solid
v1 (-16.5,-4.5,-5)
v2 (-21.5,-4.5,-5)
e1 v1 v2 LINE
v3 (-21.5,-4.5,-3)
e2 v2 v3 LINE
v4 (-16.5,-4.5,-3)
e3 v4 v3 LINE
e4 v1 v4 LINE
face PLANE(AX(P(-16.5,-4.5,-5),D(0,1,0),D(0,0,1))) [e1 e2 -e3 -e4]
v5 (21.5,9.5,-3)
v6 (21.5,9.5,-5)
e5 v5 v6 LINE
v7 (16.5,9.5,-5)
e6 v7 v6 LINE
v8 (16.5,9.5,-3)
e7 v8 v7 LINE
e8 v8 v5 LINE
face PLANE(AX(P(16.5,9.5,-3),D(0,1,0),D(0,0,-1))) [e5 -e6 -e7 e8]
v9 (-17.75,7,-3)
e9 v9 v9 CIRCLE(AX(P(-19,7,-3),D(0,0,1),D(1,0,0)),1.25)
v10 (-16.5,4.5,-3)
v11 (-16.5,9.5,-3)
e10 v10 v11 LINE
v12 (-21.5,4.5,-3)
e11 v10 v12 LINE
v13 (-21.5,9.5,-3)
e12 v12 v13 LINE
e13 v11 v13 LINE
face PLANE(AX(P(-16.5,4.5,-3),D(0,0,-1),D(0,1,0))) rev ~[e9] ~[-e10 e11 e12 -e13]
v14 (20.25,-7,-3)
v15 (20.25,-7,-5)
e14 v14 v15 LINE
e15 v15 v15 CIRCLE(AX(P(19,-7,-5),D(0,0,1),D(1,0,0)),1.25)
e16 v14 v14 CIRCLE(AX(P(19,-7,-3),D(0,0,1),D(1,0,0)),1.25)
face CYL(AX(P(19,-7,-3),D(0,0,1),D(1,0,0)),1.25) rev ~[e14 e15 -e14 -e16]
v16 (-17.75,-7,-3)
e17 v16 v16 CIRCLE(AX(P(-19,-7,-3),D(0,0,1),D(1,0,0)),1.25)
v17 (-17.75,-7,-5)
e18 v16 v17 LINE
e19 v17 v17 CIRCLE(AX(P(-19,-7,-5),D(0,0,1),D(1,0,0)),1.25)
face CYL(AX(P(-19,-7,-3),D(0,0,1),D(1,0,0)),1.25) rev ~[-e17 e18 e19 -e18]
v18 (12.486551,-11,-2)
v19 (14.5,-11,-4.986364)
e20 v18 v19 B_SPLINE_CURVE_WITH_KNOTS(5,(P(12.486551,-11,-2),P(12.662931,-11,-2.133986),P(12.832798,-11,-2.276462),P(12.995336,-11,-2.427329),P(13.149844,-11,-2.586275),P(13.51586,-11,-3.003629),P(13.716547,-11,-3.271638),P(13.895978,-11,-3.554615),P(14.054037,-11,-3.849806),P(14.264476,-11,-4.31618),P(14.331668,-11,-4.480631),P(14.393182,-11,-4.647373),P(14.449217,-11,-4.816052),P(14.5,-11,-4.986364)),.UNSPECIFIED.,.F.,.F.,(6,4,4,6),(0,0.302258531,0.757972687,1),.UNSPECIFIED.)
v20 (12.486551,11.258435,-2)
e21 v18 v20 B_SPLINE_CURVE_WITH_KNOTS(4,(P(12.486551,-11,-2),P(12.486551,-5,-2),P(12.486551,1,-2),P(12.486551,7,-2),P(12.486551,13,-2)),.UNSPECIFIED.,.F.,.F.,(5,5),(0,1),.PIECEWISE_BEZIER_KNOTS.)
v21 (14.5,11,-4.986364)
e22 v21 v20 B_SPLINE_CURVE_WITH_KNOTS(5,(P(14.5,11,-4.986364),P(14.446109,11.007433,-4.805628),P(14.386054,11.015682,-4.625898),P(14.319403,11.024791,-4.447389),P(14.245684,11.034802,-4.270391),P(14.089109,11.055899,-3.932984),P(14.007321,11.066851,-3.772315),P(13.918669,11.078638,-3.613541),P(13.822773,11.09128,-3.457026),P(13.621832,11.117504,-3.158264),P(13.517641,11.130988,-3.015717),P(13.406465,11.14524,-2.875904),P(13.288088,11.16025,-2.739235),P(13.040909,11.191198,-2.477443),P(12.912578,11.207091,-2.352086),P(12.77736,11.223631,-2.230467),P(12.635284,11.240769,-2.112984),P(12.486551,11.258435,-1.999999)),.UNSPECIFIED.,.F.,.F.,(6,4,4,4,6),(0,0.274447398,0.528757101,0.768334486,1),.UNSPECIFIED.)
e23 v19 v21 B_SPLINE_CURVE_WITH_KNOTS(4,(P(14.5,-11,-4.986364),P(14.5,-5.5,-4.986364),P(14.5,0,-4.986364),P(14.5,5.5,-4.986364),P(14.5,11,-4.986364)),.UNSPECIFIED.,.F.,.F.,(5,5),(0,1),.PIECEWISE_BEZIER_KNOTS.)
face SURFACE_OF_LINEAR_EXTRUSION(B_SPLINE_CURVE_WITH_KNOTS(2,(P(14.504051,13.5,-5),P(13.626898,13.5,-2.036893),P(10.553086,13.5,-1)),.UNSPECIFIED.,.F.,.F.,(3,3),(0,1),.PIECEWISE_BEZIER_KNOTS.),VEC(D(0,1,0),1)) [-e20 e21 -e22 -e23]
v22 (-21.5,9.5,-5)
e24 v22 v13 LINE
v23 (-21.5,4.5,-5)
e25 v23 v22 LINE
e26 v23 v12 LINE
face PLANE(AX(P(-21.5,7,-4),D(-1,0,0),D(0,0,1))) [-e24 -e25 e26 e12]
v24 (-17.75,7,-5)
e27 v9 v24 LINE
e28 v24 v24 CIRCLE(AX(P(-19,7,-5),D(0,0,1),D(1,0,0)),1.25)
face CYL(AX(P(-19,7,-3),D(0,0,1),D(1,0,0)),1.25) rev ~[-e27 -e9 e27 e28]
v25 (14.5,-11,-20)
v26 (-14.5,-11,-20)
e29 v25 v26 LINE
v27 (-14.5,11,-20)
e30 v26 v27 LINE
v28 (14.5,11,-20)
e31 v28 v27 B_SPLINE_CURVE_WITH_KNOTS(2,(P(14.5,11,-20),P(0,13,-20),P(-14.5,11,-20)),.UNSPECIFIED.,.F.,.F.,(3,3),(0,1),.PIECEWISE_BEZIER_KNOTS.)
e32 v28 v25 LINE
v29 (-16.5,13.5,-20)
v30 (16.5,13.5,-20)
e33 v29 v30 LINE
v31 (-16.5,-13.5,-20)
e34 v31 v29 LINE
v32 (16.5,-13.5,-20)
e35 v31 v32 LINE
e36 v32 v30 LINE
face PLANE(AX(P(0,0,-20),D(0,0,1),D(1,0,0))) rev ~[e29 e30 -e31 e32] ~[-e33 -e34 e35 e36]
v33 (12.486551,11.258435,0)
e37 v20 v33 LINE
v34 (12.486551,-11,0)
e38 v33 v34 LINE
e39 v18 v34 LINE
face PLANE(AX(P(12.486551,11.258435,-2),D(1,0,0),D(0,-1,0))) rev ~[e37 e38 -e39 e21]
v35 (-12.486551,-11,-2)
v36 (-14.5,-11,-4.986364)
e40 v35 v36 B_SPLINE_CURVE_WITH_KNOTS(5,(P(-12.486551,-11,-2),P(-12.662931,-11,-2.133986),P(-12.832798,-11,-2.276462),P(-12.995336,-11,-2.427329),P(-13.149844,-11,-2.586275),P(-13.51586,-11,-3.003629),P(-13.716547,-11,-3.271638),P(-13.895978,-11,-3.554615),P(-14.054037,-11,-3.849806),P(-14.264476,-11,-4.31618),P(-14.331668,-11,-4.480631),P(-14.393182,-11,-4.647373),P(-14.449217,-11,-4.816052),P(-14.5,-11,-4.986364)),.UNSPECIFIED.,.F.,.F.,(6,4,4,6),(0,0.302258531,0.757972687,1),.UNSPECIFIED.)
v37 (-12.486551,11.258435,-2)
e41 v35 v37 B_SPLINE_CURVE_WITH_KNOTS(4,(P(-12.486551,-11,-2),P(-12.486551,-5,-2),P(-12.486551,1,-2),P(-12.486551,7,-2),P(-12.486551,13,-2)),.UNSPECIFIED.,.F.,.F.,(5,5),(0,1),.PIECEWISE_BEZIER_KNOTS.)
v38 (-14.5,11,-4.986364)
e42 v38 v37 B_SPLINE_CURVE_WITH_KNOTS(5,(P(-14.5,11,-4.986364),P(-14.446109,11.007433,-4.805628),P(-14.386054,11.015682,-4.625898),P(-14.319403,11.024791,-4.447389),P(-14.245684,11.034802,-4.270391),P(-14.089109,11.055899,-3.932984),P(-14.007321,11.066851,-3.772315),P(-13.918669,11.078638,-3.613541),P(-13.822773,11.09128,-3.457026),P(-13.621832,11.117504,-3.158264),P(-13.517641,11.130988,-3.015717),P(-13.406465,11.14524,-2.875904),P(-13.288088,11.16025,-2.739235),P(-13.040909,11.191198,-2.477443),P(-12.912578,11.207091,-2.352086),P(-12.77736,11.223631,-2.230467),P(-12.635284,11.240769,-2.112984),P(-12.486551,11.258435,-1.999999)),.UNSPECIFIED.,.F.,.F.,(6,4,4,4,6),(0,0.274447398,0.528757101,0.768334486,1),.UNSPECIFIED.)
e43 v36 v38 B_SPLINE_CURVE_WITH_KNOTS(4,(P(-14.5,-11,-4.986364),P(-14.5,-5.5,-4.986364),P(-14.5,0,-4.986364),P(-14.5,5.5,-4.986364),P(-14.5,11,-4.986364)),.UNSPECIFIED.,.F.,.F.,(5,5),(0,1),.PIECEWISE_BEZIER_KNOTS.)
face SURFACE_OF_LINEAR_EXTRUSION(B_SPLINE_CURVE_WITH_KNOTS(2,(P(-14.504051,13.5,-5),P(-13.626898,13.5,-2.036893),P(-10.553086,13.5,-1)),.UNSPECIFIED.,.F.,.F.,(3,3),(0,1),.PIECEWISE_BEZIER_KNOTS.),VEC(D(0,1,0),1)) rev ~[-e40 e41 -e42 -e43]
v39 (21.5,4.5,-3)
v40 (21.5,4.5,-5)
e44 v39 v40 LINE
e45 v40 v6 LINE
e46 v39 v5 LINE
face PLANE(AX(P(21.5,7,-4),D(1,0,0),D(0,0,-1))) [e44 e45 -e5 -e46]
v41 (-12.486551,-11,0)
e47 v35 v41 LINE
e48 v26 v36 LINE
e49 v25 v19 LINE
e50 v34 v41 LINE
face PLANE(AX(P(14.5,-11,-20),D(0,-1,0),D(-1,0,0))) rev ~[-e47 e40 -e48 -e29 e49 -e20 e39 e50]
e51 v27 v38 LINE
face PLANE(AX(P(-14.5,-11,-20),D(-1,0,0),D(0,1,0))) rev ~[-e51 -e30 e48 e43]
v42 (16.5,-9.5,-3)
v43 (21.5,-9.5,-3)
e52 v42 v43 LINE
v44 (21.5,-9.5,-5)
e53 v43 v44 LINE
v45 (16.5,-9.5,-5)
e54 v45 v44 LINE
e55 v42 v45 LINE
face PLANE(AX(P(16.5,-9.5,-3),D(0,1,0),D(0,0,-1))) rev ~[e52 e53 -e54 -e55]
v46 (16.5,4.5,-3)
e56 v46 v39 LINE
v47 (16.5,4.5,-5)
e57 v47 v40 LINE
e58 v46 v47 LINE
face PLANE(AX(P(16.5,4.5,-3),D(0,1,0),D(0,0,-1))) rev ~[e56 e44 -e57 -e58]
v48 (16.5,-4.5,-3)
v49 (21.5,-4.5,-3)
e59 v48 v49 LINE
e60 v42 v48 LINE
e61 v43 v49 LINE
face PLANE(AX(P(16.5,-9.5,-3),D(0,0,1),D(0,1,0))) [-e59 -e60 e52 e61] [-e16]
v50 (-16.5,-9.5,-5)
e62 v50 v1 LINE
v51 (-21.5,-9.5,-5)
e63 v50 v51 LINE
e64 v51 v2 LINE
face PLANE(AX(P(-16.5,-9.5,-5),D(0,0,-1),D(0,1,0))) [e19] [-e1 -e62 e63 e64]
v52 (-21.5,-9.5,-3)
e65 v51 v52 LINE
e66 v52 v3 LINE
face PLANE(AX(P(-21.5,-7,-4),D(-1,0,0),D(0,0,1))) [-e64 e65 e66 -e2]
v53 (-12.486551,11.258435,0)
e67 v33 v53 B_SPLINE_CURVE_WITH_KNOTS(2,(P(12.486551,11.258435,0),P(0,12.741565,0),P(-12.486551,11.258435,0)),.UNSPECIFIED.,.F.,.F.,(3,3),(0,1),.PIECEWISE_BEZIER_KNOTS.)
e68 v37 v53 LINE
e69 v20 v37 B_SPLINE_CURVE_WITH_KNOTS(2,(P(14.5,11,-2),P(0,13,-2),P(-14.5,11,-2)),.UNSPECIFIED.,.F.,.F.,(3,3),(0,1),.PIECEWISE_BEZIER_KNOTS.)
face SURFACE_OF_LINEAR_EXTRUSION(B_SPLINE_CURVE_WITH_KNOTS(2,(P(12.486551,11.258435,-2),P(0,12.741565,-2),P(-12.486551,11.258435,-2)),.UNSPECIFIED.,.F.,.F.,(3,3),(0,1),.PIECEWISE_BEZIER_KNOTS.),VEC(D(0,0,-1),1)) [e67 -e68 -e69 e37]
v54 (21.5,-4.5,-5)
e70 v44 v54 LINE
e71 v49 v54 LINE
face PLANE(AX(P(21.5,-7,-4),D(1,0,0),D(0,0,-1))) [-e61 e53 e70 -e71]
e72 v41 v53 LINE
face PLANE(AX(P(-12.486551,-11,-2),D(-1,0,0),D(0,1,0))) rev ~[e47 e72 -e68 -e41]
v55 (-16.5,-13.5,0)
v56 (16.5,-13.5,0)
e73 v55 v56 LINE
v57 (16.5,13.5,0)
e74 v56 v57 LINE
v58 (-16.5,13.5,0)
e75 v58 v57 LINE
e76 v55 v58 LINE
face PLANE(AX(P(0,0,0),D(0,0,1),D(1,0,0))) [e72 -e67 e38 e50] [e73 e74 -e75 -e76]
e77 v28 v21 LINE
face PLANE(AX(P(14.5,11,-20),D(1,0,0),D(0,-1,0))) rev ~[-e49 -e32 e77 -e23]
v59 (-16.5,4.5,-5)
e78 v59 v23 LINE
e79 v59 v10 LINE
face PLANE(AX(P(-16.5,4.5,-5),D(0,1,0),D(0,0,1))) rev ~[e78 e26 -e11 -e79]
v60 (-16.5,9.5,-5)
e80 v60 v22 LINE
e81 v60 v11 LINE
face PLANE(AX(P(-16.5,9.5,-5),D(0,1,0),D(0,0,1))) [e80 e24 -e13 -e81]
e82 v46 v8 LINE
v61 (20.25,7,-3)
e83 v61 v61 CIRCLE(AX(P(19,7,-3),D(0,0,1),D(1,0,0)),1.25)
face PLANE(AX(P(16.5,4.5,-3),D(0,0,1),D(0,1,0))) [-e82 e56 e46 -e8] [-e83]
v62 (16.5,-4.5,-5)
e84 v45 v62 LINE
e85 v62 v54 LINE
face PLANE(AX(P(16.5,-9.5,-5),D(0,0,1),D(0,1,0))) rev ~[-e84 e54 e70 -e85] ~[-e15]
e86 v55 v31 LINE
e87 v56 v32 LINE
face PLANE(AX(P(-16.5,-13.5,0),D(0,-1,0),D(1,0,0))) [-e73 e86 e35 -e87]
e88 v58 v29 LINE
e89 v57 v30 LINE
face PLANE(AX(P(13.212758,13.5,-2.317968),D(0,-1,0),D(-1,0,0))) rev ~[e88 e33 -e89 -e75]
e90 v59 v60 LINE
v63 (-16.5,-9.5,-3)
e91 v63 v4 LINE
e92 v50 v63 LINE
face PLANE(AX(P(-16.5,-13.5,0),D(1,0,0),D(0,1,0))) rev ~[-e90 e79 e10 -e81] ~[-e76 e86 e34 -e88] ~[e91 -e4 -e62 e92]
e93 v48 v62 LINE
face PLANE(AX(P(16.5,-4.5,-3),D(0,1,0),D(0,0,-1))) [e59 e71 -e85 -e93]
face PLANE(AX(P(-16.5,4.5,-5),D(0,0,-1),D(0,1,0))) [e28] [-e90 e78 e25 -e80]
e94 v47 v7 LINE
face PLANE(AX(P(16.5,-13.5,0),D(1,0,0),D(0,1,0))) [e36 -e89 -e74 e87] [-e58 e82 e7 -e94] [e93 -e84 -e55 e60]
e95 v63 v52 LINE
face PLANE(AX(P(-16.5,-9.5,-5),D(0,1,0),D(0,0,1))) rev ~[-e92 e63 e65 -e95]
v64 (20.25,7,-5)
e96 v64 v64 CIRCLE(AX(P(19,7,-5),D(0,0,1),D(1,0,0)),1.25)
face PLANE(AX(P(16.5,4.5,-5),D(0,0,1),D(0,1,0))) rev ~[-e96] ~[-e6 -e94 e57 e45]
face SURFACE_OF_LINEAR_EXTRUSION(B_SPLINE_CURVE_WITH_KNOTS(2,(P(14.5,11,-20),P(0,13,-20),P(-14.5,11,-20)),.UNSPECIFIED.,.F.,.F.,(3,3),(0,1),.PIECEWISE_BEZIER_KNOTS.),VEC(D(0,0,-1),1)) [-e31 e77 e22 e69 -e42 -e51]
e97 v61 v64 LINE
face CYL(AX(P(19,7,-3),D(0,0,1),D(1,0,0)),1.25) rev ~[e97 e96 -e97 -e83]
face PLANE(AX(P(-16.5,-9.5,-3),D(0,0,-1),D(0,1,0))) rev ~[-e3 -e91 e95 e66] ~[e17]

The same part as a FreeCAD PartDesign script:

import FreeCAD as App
import Part
import Sketcher


def add_polygon(sketch, points):
    """Adds a closed chain of lines whose ends are joined by coincident constraints."""
    first, n = sketch.GeometryCount, len(points)
    for a, b in zip(points, points[1:] + points[:1]):
        sketch.addGeometry(Part.LineSegment(App.Vector(*a, 0), App.Vector(*b, 0)), False)
    for i in range(n):
        sketch.addConstraint(Sketcher.Constraint("Coincident", first + i, 2, first + (i + 1) % n, 1))

doc = App.newDocument("Part")
params = doc.addObject("Spreadsheet::Sheet", "Params")
for row, (alias, value) in enumerate([
    ("sketch1_width", "33 mm"),
    ("sketch1_height", "27 mm"),
    ("pad1_length", "20 mm"),
    ("sketch2_height", "22 mm"),
    ("pocket1_length", "18 mm"),
    ("pad2_length", "25 mm"),
    ("pocket2_length", "2 mm"),
    ("sketch5_width", "5 mm"),
    ("sketch5_height", "2 mm"),
    ("pad3_length", "5 mm"),
    ("sketch6_width", "5 mm"),
    ("sketch6_height", "2 mm"),
    ("pad4_length", "5 mm"),
    ("sketch7_diameter", "2.5 mm"),
    ("pocket3_length", "2 mm"),
], start=1):
    params.set(f"A{row}", alias)
    params.set(f"B{row}", "=" + value)
    params.setAlias(f"B{row}", alias)

body = doc.addObject("PartDesign::Body", "Body")

# Sketch on XY plane
sketch1 = body.newObject("Sketcher::SketchObject", "Sketch")
sketch1.AttachmentSupport = (doc.getObject("XY_Plane"), [""])
sketch1.MapMode = "FlatFace"
add_polygon(sketch1, [(-16.5, 13.5), (-16.5, -13.5), (16.5, -13.5), (16.5, 13.5)])  # lines 0-3
sketch1.addConstraint(Sketcher.Constraint("Vertical", 0))
sketch1.addConstraint(Sketcher.Constraint("Horizontal", 1))
sketch1.addConstraint(Sketcher.Constraint("Vertical", 2))
sketch1.addConstraint(Sketcher.Constraint("Horizontal", 3))
sketch1.addConstraint(Sketcher.Constraint("Symmetric", 0, 2, 2, 2, -1, 1))
sketch1.addConstraint(Sketcher.Constraint("DistanceX", 1, 1, 1, 2, 33.0))
sketch1.addConstraint(Sketcher.Constraint("DistanceY", 0, 2, 0, 1, 27.0))
sketch1.setExpression("Constraints[9]", "Params.sketch1_width")
sketch1.setExpression("Constraints[10]", "Params.sketch1_height")
pad1 = body.newObject("PartDesign::Pad", "Pad")
pad1.Profile = sketch1
pad1.setExpression("Length", "Params.pad1_length")
pad1.Reversed = True

# Sketch on XY plane
sketch2 = body.newObject("Sketcher::SketchObject", "Sketch001")
sketch2.AttachmentSupport = (doc.getObject("XY_Plane"), [""])
sketch2.MapMode = "FlatFace"
sketch2.AttachmentOffset = App.Placement(App.Vector(0, 0, -20), App.Rotation())
sketch2.addGeometry(Part.LineSegment(App.Vector(14.5, 11, 0), App.Vector(14.5, -11, 0)), False)
sketch2.addGeometry(Part.LineSegment(App.Vector(14.5, -11, 0), App.Vector(-14.5, -11, 0)), False)
sketch2.addGeometry(Part.LineSegment(App.Vector(-14.5, -11, 0), App.Vector(-14.5, 11, 0)), False)
sketch2.addGeometry(Part.BSplineCurve([App.Vector(14.5, 11, 0), App.Vector(0, 13, 0), App.Vector(-14.5, 11, 0)], [3, 3], [0, 1], False, 2, [1, 1, 1], False), False)
sketch2.addConstraint(Sketcher.Constraint("Block", 3))
sketch2.addConstraint(Sketcher.Constraint("Coincident", 0, 2, 1, 1))
sketch2.addConstraint(Sketcher.Constraint("Coincident", 1, 2, 2, 1))
sketch2.addConstraint(Sketcher.Constraint("Coincident", 2, 2, 3, 2))
sketch2.addConstraint(Sketcher.Constraint("Coincident", 3, 1, 0, 1))
sketch2.addConstraint(Sketcher.Constraint("Vertical", 0))
sketch2.addConstraint(Sketcher.Constraint("Horizontal", 1))
sketch2.addConstraint(Sketcher.Constraint("Vertical", 2))
sketch2.addConstraint(Sketcher.Constraint("DistanceY", 0, 2, 0, 1, 22.0))
sketch2.setExpression("Constraints[8]", "Params.sketch2_height")
pocket1 = body.newObject("PartDesign::Pocket", "Pocket")
pocket1.Profile = sketch2
pocket1.setExpression("Length", "Params.pocket1_length")
pocket1.Reversed = True

# Sketch on XZ plane
sketch3 = body.newObject("Sketcher::SketchObject", "Sketch002")
sketch3.AttachmentSupport = (doc.getObject("XZ_Plane"), [""])
sketch3.MapMode = "FlatFace"
sketch3.AttachmentOffset = App.Placement(App.Vector(0, 0, -13.5), App.Rotation())
sketch3.addGeometry(Part.LineSegment(App.Vector(14.504051, -1, 0), App.Vector(14.504051, -5, 0)), False)
sketch3.addGeometry(Part.BSplineCurve([App.Vector(14.504051, -5, 0), App.Vector(13.626898, -2.036893, 0), App.Vector(10.553086, -1, 0)], [3, 3], [0, 1], False, 2, [1, 1, 1], False), False)
sketch3.addGeometry(Part.LineSegment(App.Vector(10.553086, -1, 0), App.Vector(14.504051, -1, 0)), False)
sketch3.addGeometry(Part.BSplineCurve([App.Vector(-14.504051, -5, 0), App.Vector(-13.626898, -2.036893, 0), App.Vector(-10.553086, -1, 0)], [3, 3], [0, 1], False, 2, [1, 1, 1], False), False)
sketch3.addGeometry(Part.LineSegment(App.Vector(-14.504051, -5, 0), App.Vector(-14.504051, -1, 0)), False)
sketch3.addGeometry(Part.LineSegment(App.Vector(-14.504051, -1, 0), App.Vector(-10.553086, -1, 0)), False)
sketch3.addConstraint(Sketcher.Constraint("Block", 1))
sketch3.addConstraint(Sketcher.Constraint("Block", 3))
sketch3.addConstraint(Sketcher.Constraint("Coincident", 0, 2, 1, 1))
sketch3.addConstraint(Sketcher.Constraint("Coincident", 1, 2, 2, 1))
sketch3.addConstraint(Sketcher.Constraint("Coincident", 2, 2, 0, 1))
sketch3.addConstraint(Sketcher.Constraint("Coincident", 3, 1, 4, 1))
sketch3.addConstraint(Sketcher.Constraint("Coincident", 4, 2, 5, 1))
sketch3.addConstraint(Sketcher.Constraint("Coincident", 5, 2, 3, 2))
sketch3.addConstraint(Sketcher.Constraint("Vertical", 0))
sketch3.addConstraint(Sketcher.Constraint("Horizontal", 2))
sketch3.addConstraint(Sketcher.Constraint("Vertical", 4))
sketch3.addConstraint(Sketcher.Constraint("Horizontal", 5))
pad2 = body.newObject("PartDesign::Pad", "Pad001")
pad2.Profile = sketch3
pad2.setExpression("Length", "Params.pad2_length")

# Sketch on XY plane
sketch4 = body.newObject("Sketcher::SketchObject", "Sketch003")
sketch4.AttachmentSupport = (doc.getObject("XY_Plane"), [""])
sketch4.MapMode = "FlatFace"
sketch4.AttachmentOffset = App.Placement(App.Vector(0, 0, -2), App.Rotation())
sketch4.addGeometry(Part.LineSegment(App.Vector(12.486551, 11.258435, 0), App.Vector(12.486551, -11, 0)), False)
sketch4.addGeometry(Part.LineSegment(App.Vector(12.486551, -11, 0), App.Vector(-12.486551, -11, 0)), False)
sketch4.addGeometry(Part.LineSegment(App.Vector(-12.486551, -11, 0), App.Vector(-12.486551, 11.258435, 0)), False)
sketch4.addGeometry(Part.BSplineCurve([App.Vector(12.486551, 11.258435, 0), App.Vector(0, 12.741565, 0), App.Vector(-12.486551, 11.258435, 0)], [3, 3], [0, 1], False, 2, [1, 1, 1], False), False)
sketch4.addConstraint(Sketcher.Constraint("Block", 3))
sketch4.addConstraint(Sketcher.Constraint("Coincident", 0, 2, 1, 1))
sketch4.addConstraint(Sketcher.Constraint("Coincident", 1, 2, 2, 1))
sketch4.addConstraint(Sketcher.Constraint("Coincident", 2, 2, 3, 2))
sketch4.addConstraint(Sketcher.Constraint("Coincident", 3, 1, 0, 1))
sketch4.addConstraint(Sketcher.Constraint("Vertical", 0))
sketch4.addConstraint(Sketcher.Constraint("Horizontal", 1))
sketch4.addConstraint(Sketcher.Constraint("Vertical", 2))
sketch4.addConstraint(Sketcher.Constraint("DistanceY", 0, 2, -1, 1, 11.0))
pocket2 = body.newObject("PartDesign::Pocket", "Pocket001")
pocket2.Profile = sketch4
pocket2.setExpression("Length", "Params.pocket2_length")
pocket2.Reversed = True

# Sketch on YZ plane
sketch5 = body.newObject("Sketcher::SketchObject", "Sketch004")
sketch5.AttachmentSupport = (doc.getObject("YZ_Plane"), [""])
sketch5.MapMode = "FlatFace"
sketch5.AttachmentOffset = App.Placement(App.Vector(0, 0, -16.5), App.Rotation())
add_polygon(sketch5, [(9.5, -5), (4.5, -5), (4.5, -3), (9.5, -3)])  # lines 0-3
add_polygon(sketch5, [(-4.5, -5), (-9.5, -5), (-9.5, -3), (-4.5, -3)])  # lines 4-7
sketch5.addConstraint(Sketcher.Constraint("Horizontal", 0))
sketch5.addConstraint(Sketcher.Constraint("Vertical", 1))
sketch5.addConstraint(Sketcher.Constraint("Horizontal", 2))
sketch5.addConstraint(Sketcher.Constraint("Vertical", 3))
sketch5.addConstraint(Sketcher.Constraint("Horizontal", 4))
sketch5.addConstraint(Sketcher.Constraint("Vertical", 5))
sketch5.addConstraint(Sketcher.Constraint("Horizontal", 6))
sketch5.addConstraint(Sketcher.Constraint("Vertical", 7))
sketch5.addConstraint(Sketcher.Constraint("Symmetric", 3, 2, 4, 2, -2))
sketch5.addConstraint(Sketcher.Constraint("Symmetric", 1, 2, 6, 2, -2))
sketch5.addConstraint(Sketcher.Constraint("DistanceX", 0, 2, 0, 1, 5.0))
sketch5.addConstraint(Sketcher.Constraint("DistanceY", 1, 1, 1, 2, 2.0))
sketch5.addConstraint(Sketcher.Constraint("DistanceY", 0, 2, -1, 1, 5.0))
sketch5.addConstraint(Sketcher.Constraint("DistanceX", 4, 2, 0, 2, 14.0))
sketch5.setExpression("Constraints[18]", "Params.sketch5_width")
sketch5.setExpression("Constraints[19]", "Params.sketch5_height")
pad3 = body.newObject("PartDesign::Pad", "Pad002")
pad3.Profile = sketch5
pad3.setExpression("Length", "Params.pad3_length")
pad3.Reversed = True

# Sketch on YZ plane
sketch6 = body.newObject("Sketcher::SketchObject", "Sketch005")
sketch6.AttachmentSupport = (doc.getObject("YZ_Plane"), [""])
sketch6.MapMode = "FlatFace"
sketch6.AttachmentOffset = App.Placement(App.Vector(0, 0, 16.5), App.Rotation())
add_polygon(sketch6, [(9.5, -3), (4.5, -3), (4.5, -5), (9.5, -5)])  # lines 0-3
add_polygon(sketch6, [(-4.5, -3), (-9.5, -3), (-9.5, -5), (-4.5, -5)])  # lines 4-7
sketch6.addConstraint(Sketcher.Constraint("Horizontal", 0))
sketch6.addConstraint(Sketcher.Constraint("Vertical", 1))
sketch6.addConstraint(Sketcher.Constraint("Horizontal", 2))
sketch6.addConstraint(Sketcher.Constraint("Vertical", 3))
sketch6.addConstraint(Sketcher.Constraint("Horizontal", 4))
sketch6.addConstraint(Sketcher.Constraint("Vertical", 5))
sketch6.addConstraint(Sketcher.Constraint("Horizontal", 6))
sketch6.addConstraint(Sketcher.Constraint("Vertical", 7))
sketch6.addConstraint(Sketcher.Constraint("Symmetric", 3, 2, 4, 2, -2))
sketch6.addConstraint(Sketcher.Constraint("Symmetric", 1, 2, 6, 2, -2))
sketch6.addConstraint(Sketcher.Constraint("DistanceX", 0, 2, 0, 1, 5.0))
sketch6.addConstraint(Sketcher.Constraint("DistanceY", 1, 2, 1, 1, 2.0))
sketch6.addConstraint(Sketcher.Constraint("DistanceY", 0, 2, -1, 1, 3.0))
sketch6.addConstraint(Sketcher.Constraint("DistanceX", 4, 2, 0, 2, 14.0))
sketch6.setExpression("Constraints[18]", "Params.sketch6_width")
sketch6.setExpression("Constraints[19]", "Params.sketch6_height")
pad4 = body.newObject("PartDesign::Pad", "Pad003")
pad4.Profile = sketch6
pad4.setExpression("Length", "Params.pad4_length")

# Sketch on XY plane
sketch7 = body.newObject("Sketcher::SketchObject", "Sketch006")
sketch7.AttachmentSupport = (doc.getObject("XY_Plane"), [""])
sketch7.MapMode = "FlatFace"
sketch7.AttachmentOffset = App.Placement(App.Vector(0, 0, -3), App.Rotation())
sketch7.addGeometry(Part.Circle(App.Vector(19, -7, 0), App.Vector(0, 0, 1), 1.25), False)
sketch7.addGeometry(Part.Circle(App.Vector(19, 7, 0), App.Vector(0, 0, 1), 1.25), False)
sketch7.addGeometry(Part.Circle(App.Vector(-19, 7, 0), App.Vector(0, 0, 1), 1.25), False)
sketch7.addGeometry(Part.Circle(App.Vector(-19, -7, 0), App.Vector(0, 0, 1), 1.25), False)
sketch7.addConstraint(Sketcher.Constraint("Equal", 0, 1))
sketch7.addConstraint(Sketcher.Constraint("Equal", 1, 2))
sketch7.addConstraint(Sketcher.Constraint("Equal", 2, 3))
sketch7.addConstraint(Sketcher.Constraint("Symmetric", 0, 3, 2, 3, -1, 1))
sketch7.addConstraint(Sketcher.Constraint("Symmetric", 1, 3, 3, 3, -1, 1))
sketch7.addConstraint(Sketcher.Constraint("Symmetric", 1, 3, 2, 3, -2))
sketch7.addConstraint(Sketcher.Constraint("Diameter", 0, 2.5))
sketch7.addConstraint(Sketcher.Constraint("DistanceX", -1, 1, 0, 3, 19.0))
sketch7.addConstraint(Sketcher.Constraint("DistanceY", 0, 3, -1, 1, 7.0))
sketch7.setExpression("Constraints[6]", "Params.sketch7_diameter")
pocket3 = body.newObject("PartDesign::Pocket", "Pocket002")
pocket3.Profile = sketch7
pocket3.setExpression("Length", "Params.pocket3_length")

doc.recompute()
